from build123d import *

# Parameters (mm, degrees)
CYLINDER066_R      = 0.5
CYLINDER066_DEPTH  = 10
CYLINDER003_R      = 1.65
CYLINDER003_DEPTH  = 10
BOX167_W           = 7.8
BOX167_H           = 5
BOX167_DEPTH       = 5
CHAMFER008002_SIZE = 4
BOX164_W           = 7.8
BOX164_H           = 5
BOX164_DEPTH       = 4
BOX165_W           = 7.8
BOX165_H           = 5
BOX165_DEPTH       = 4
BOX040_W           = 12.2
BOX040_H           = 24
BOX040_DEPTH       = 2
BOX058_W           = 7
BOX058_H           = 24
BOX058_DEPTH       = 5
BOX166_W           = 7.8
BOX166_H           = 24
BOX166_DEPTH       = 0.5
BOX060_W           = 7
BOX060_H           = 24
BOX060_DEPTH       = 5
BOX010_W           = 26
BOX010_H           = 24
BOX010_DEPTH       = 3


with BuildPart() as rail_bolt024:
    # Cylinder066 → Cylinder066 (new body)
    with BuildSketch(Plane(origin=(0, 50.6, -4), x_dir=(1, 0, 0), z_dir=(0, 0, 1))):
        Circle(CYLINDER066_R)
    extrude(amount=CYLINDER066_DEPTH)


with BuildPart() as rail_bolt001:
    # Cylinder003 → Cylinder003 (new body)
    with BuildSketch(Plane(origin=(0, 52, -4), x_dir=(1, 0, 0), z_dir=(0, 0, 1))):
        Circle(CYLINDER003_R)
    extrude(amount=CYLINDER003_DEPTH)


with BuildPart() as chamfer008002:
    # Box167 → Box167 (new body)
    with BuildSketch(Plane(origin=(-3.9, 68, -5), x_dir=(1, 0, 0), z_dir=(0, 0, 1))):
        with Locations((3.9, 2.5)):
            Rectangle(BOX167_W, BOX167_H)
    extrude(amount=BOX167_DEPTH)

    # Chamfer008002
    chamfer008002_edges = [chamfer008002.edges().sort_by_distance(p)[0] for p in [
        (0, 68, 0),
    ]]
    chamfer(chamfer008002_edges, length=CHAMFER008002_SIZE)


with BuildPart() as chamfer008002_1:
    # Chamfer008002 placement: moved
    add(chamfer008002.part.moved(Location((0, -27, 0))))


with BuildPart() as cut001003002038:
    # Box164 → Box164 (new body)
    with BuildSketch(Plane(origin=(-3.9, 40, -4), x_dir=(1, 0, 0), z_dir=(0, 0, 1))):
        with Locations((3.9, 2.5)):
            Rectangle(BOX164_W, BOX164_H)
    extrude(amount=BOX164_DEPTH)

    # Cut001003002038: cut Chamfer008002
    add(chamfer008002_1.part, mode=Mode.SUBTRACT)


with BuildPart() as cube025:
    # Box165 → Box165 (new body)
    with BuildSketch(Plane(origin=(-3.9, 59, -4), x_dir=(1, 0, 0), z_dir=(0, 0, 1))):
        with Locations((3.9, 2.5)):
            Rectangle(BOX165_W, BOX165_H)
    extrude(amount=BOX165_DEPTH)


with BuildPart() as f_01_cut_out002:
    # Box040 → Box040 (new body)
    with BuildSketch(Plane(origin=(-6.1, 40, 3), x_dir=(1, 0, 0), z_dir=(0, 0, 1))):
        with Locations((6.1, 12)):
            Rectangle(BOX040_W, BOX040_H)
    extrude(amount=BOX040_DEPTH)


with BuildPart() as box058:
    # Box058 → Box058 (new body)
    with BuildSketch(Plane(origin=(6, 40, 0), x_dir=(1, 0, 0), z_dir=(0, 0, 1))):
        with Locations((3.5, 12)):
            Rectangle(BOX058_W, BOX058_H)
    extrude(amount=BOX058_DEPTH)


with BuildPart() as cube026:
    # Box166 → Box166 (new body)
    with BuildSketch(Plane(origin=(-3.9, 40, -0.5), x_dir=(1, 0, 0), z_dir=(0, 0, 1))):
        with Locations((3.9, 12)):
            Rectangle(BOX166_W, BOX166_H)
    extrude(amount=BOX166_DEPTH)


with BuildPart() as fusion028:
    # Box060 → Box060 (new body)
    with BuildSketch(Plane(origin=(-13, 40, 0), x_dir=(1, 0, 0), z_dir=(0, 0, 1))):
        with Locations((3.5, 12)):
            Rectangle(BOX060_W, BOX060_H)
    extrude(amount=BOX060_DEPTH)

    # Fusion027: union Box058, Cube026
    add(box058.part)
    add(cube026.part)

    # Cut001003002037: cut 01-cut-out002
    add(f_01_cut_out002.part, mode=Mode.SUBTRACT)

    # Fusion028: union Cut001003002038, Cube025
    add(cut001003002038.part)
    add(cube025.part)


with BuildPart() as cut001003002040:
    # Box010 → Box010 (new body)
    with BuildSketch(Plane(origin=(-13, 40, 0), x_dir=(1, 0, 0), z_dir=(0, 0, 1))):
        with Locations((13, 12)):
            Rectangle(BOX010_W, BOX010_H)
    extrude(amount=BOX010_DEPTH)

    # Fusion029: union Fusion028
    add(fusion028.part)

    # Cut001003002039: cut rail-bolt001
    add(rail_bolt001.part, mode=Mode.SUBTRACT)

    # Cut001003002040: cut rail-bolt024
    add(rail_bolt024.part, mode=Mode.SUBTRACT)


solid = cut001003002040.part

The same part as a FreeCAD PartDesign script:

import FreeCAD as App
import Part
import Sketcher


def edges_at(feature, points):
    """Names of the edges that pass closest to the given points."""
    edges = feature.Shape.Edges
    near = lambda p: min(range(len(edges)), key=lambda i: edges[i].distToShape(Part.Vertex(*p))[0])
    return sorted({f"Edge{near(p) + 1}" for p in points})

doc = App.newDocument("Part")
body = doc.addObject("PartDesign::Body", "Body")

# Sketch on XY plane
sketch1 = doc.addObject("Sketcher::SketchObject", "Sketch")
body.addObject(sketch1)
sketch1.AttachmentSupport = (doc.XY_Plane, [""])
sketch1.MapMode = "FlatFace"
sketch1.AttachmentOffset = App.Placement(App.Vector(0, 0, -4), App.Rotation())
sketch1.addGeometry(Part.Circle(App.Vector(0, 50.6, 0), App.Vector(0, 0, 1), 0.5), False)
sketch1.addConstraint([
    Sketcher.Constraint("PointOnObject", 0, 3, -2),
    Sketcher.Constraint("Diameter", 0, 1.0),
    Sketcher.Constraint("DistanceY", -1, 1, 0, 3, 50.6),
])
pad1 = doc.addObject("PartDesign::Pad", "Pad")
body.addObject(pad1)
pad1.Profile = sketch1
pad1.Length = 10
body2 = doc.addObject("PartDesign::Body", "Body001")

# Sketch on XY plane
sketch2 = doc.addObject("Sketcher::SketchObject", "Sketch001")
body2.addObject(sketch2)
sketch2.AttachmentSupport = (doc.getObject("XY_Plane001"), [""])
sketch2.MapMode = "FlatFace"
sketch2.AttachmentOffset = App.Placement(App.Vector(0, 0, -4), App.Rotation())
sketch2.addGeometry(Part.Circle(App.Vector(0, 52, 0), App.Vector(0, 0, 1), 1.65), False)
sketch2.addConstraint([
    Sketcher.Constraint("PointOnObject", 0, 3, -2),
    Sketcher.Constraint("Diameter", 0, 3.3),
    Sketcher.Constraint("DistanceY", -1, 1, 0, 3, 52.0),
])
pad2 = doc.addObject("PartDesign::Pad", "Pad001")
body2.addObject(pad2)
pad2.Profile = sketch2
pad2.Length = 10
body3 = doc.addObject("PartDesign::Body", "Body002")

# Sketch on XY plane
sketch3 = doc.addObject("Sketcher::SketchObject", "Sketch002")
body3.addObject(sketch3)
sketch3.AttachmentSupport = (doc.getObject("XY_Plane002"), [""])
sketch3.MapMode = "FlatFace"
sketch3.AttachmentOffset = App.Placement(App.Vector(0, 0, -5), App.Rotation())
sketch3.addGeometry([
    Part.LineSegment(App.Vector(-3.9, 73, 0), App.Vector(-3.9, 68, 0)),
    Part.LineSegment(App.Vector(-3.9, 68, 0), App.Vector(3.9, 68, 0)),
    Part.LineSegment(App.Vector(3.9, 68, 0), App.Vector(3.9, 73, 0)),
    Part.LineSegment(App.Vector(3.9, 73, 0), App.Vector(-3.9, 73, 0)),
], False)
sketch3.addConstraint([
    Sketcher.Constraint("Coincident", 0, 2, 1, 1),
    Sketcher.Constraint("Coincident", 1, 2, 2, 1),
    Sketcher.Constraint("Coincident", 2, 2, 3, 1),
    Sketcher.Constraint("Coincident", 3, 2, 0, 1),
    Sketcher.Constraint("Vertical", 0),
    Sketcher.Constraint("Horizontal", 1),
    Sketcher.Constraint("Vertical", 2),
    Sketcher.Constraint("Horizontal", 3),
    Sketcher.Constraint("DistanceY", 0, 2, 0, 1, 5.0),
    Sketcher.Constraint("DistanceX", 1, 1, 1, 2, 7.8),
    Sketcher.Constraint("DistanceY", -1, 1, 0, 2, 68.0),
    Sketcher.Constraint("DistanceX", 0, 2, -1, 1, 3.9),
])
pad3 = doc.addObject("PartDesign::Pad", "Pad002")
body3.addObject(pad3)
pad3.Profile = sketch3
pad3.Length = 5
doc.recompute()

chamfer = doc.addObject("PartDesign::Chamfer", "Chamfer")
body3.addObject(chamfer)
chamfer.Base = (pad3, edges_at(pad3, [(0, 68, 0)]))
chamfer.Size = 4
body4 = doc.addObject("PartDesign::Body", "Body003")
doc.recompute()

body3.Placement = App.Placement(App.Vector(0, -27, 0), App.Rotation(App.Vector(0, 0, 1), 0))
boolean = doc.addObject("PartDesign::Boolean", "Boolean")
body4.addObject(boolean)
boolean.Type = "Fuse"
boolean.addObjects([body3])
body5 = doc.addObject("PartDesign::Body", "Body004")

# Sketch on XY plane
sketch4 = doc.addObject("Sketcher::SketchObject", "Sketch003")
body5.addObject(sketch4)
sketch4.AttachmentSupport = (doc.getObject("XY_Plane004"), [""])
sketch4.MapMode = "FlatFace"
sketch4.AttachmentOffset = App.Placement(App.Vector(0, 0, -4), App.Rotation())
sketch4.addGeometry([
    Part.LineSegment(App.Vector(-3.9, 45, 0), App.Vector(-3.9, 40, 0)),
    Part.LineSegment(App.Vector(-3.9, 40, 0), App.Vector(3.9, 40, 0)),
    Part.LineSegment(App.Vector(3.9, 40, 0), App.Vector(3.9, 45, 0)),
    Part.LineSegment(App.Vector(3.9, 45, 0), App.Vector(-3.9, 45, 0)),
], False)
sketch4.addConstraint([
    Sketcher.Constraint("Coincident", 0, 2, 1, 1),
    Sketcher.Constraint("Coincident", 1, 2, 2, 1),
    Sketcher.Constraint("Coincident", 2, 2, 3, 1),
    Sketcher.Constraint("Coincident", 3, 2, 0, 1),
    Sketcher.Constraint("Vertical", 0),
    Sketcher.Constraint("Horizontal", 1),
    Sketcher.Constraint("Vertical", 2),
    Sketcher.Constraint("Horizontal", 3),
    Sketcher.Constraint("DistanceY", 0, 2, 0, 1, 5.0),
    Sketcher.Constraint("DistanceX", 1, 1, 1, 2, 7.8),
    Sketcher.Constraint("DistanceY", -1, 1, 0, 2, 40.0),
    Sketcher.Constraint("DistanceX", 0, 2, -1, 1, 3.9),
])
pad4 = doc.addObject("PartDesign::Pad", "Pad003")
body5.addObject(pad4)
pad4.Profile = sketch4
pad4.Length = 4
doc.recompute()

boolean2 = doc.addObject("PartDesign::Boolean", "Boolean001")
body5.addObject(boolean2)
boolean2.Type = "Cut"
boolean2.addObjects([body4])
body6 = doc.addObject("PartDesign::Body", "Body005")

# Sketch on XY plane
sketch5 = doc.addObject("Sketcher::SketchObject", "Sketch004")
body6.addObject(sketch5)
sketch5.AttachmentSupport = (doc.getObject("XY_Plane005"), [""])
sketch5.MapMode = "FlatFace"
sketch5.AttachmentOffset = App.Placement(App.Vector(0, 0, -4), App.Rotation())
sketch5.addGeometry([
    Part.LineSegment(App.Vector(-3.9, 64, 0), App.Vector(-3.9, 59, 0)),
    Part.LineSegment(App.Vector(-3.9, 59, 0), App.Vector(3.9, 59, 0)),
    Part.LineSegment(App.Vector(3.9, 59, 0), App.Vector(3.9, 64, 0)),
    Part.LineSegment(App.Vector(3.9, 64, 0), App.Vector(-3.9, 64, 0)),
], False)
sketch5.addConstraint([
    Sketcher.Constraint("Coincident", 0, 2, 1, 1),
    Sketcher.Constraint("Coincident", 1, 2, 2, 1),
    Sketcher.Constraint("Coincident", 2, 2, 3, 1),
    Sketcher.Constraint("Coincident", 3, 2, 0, 1),
    Sketcher.Constraint("Vertical", 0),
    Sketcher.Constraint("Horizontal", 1),
    Sketcher.Constraint("Vertical", 2),
    Sketcher.Constraint("Horizontal", 3),
    Sketcher.Constraint("DistanceY", 0, 2, 0, 1, 5.0),
    Sketcher.Constraint("DistanceX", 1, 1, 1, 2, 7.8),
    Sketcher.Constraint("DistanceY", -1, 1, 0, 2, 59.0),
    Sketcher.Constraint("DistanceX", 0, 2, -1, 1, 3.9),
])
pad5 = doc.addObject("PartDesign::Pad", "Pad004")
body6.addObject(pad5)
pad5.Profile = sketch5
pad5.Length = 4
body7 = doc.addObject("PartDesign::Body", "Body006")

# Sketch on XY plane
sketch6 = doc.addObject("Sketcher::SketchObject", "Sketch005")
body7.addObject(sketch6)
sketch6.AttachmentSupport = (doc.getObject("XY_Plane006"), [""])
sketch6.MapMode = "FlatFace"
sketch6.AttachmentOffset = App.Placement(App.Vector(0, 0, 3), App.Rotation())
sketch6.addGeometry([
    Part.LineSegment(App.Vector(-6.1, 64, 0), App.Vector(-6.1, 40, 0)),
    Part.LineSegment(App.Vector(-6.1, 40, 0), App.Vector(6.1, 40, 0)),
    Part.LineSegment(App.Vector(6.1, 40, 0), App.Vector(6.1, 64, 0)),
    Part.LineSegment(App.Vector(6.1, 64, 0), App.Vector(-6.1, 64, 0)),
], False)
sketch6.addConstraint([
    Sketcher.Constraint("Coincident", 0, 2, 1, 1),
    Sketcher.Constraint("Coincident", 1, 2, 2, 1),
    Sketcher.Constraint("Coincident", 2, 2, 3, 1),
    Sketcher.Constraint("Coincident", 3, 2, 0, 1),
    Sketcher.Constraint("Vertical", 0),
    Sketcher.Constraint("Horizontal", 1),
    Sketcher.Constraint("Vertical", 2),
    Sketcher.Constraint("Horizontal", 3),
    Sketcher.Constraint("DistanceY", 0, 2, 0, 1, 24.0),
    Sketcher.Constraint("DistanceX", 1, 1, 1, 2, 12.2),
    Sketcher.Constraint("DistanceY", -1, 1, 0, 2, 40.0),
    Sketcher.Constraint("DistanceX", 0, 2, -1, 1, 6.1),
])
pad6 = doc.addObject("PartDesign::Pad", "Pad005")
body7.addObject(pad6)
pad6.Profile = sketch6
pad6.Length = 2
body8 = doc.addObject("PartDesign::Body", "Body007")

# Sketch on XY plane
sketch7 = doc.addObject("Sketcher::SketchObject", "Sketch006")
body8.addObject(sketch7)
sketch7.AttachmentSupport = (doc.getObject("XY_Plane007"), [""])
sketch7.MapMode = "FlatFace"
sketch7.addGeometry([
    Part.LineSegment(App.Vector(6, 64, 0), App.Vector(6, 40, 0)),
    Part.LineSegment(App.Vector(6, 40, 0), App.Vector(13, 40, 0)),
    Part.LineSegment(App.Vector(13, 40, 0), App.Vector(13, 64, 0)),
    Part.LineSegment(App.Vector(13, 64, 0), App.Vector(6, 64, 0)),
], False)
sketch7.addConstraint([
    Sketcher.Constraint("Coincident", 0, 2, 1, 1),
    Sketcher.Constraint("Coincident", 1, 2, 2, 1),
    Sketcher.Constraint("Coincident", 2, 2, 3, 1),
    Sketcher.Constraint("Coincident", 3, 2, 0, 1),
    Sketcher.Constraint("Vertical", 0),
    Sketcher.Constraint("Horizontal", 1),
    Sketcher.Constraint("Vertical", 2),
    Sketcher.Constraint("Horizontal", 3),
    Sketcher.Constraint("DistanceX", 1, 1, 1, 2, 7.0),
    Sketcher.Constraint("DistanceY", 0, 2, 0, 1, 24.0),
    Sketcher.Constraint("DistanceX", -1, 1, 0, 2, 6.0),
    Sketcher.Constraint("DistanceY", -1, 1, 0, 2, 40.0),
])
pad7 = doc.addObject("PartDesign::Pad", "Pad006")
body8.addObject(pad7)
pad7.Profile = sketch7
pad7.Length = 5
body9 = doc.addObject("PartDesign::Body", "Body008")

# Sketch on XY plane
sketch8 = doc.addObject("Sketcher::SketchObject", "Sketch007")
body9.addObject(sketch8)
sketch8.AttachmentSupport = (doc.getObject("XY_Plane008"), [""])
sketch8.MapMode = "FlatFace"
sketch8.AttachmentOffset = App.Placement(App.Vector(0, 0, -0.5), App.Rotation())
sketch8.addGeometry([
    Part.LineSegment(App.Vector(-3.9, 64, 0), App.Vector(-3.9, 40, 0)),
    Part.LineSegment(App.Vector(-3.9, 40, 0), App.Vector(3.9, 40, 0)),
    Part.LineSegment(App.Vector(3.9, 40, 0), App.Vector(3.9, 64, 0)),
    Part.LineSegment(App.Vector(3.9, 64, 0), App.Vector(-3.9, 64, 0)),
], False)
sketch8.addConstraint([
    Sketcher.Constraint("Coincident", 0, 2, 1, 1),
    Sketcher.Constraint("Coincident", 1, 2, 2, 1),
    Sketcher.Constraint("Coincident", 2, 2, 3, 1),
    Sketcher.Constraint("Coincident", 3, 2, 0, 1),
    Sketcher.Constraint("Vertical", 0),
    Sketcher.Constraint("Horizontal", 1),
    Sketcher.Constraint("Vertical", 2),
    Sketcher.Constraint("Horizontal", 3),
    Sketcher.Constraint("DistanceY", 0, 2, 0, 1, 24.0),
    Sketcher.Constraint("DistanceX", 1, 1, 1, 2, 7.8),
    Sketcher.Constraint("DistanceY", -1, 1, 0, 2, 40.0),
    Sketcher.Constraint("DistanceX", 0, 2, -1, 1, 3.9),
])
pad8 = doc.addObject("PartDesign::Pad", "Pad007")
body9.addObject(pad8)
pad8.Profile = sketch8
pad8.Length = 0.5
body10 = doc.addObject("PartDesign::Body", "Body009")
body10.AllowCompound = True

# Sketch on XY plane
sketch9 = doc.addObject("Sketcher::SketchObject", "Sketch008")
body10.addObject(sketch9)
sketch9.AttachmentSupport = (doc.getObject("XY_Plane009"), [""])
sketch9.MapMode = "FlatFace"
sketch9.addGeometry([
    Part.LineSegment(App.Vector(-13, 64, 0), App.Vector(-13, 40, 0)),
    Part.LineSegment(App.Vector(-13, 40, 0), App.Vector(-6, 40, 0)),
    Part.LineSegment(App.Vector(-6, 40, 0), App.Vector(-6, 64, 0)),
    Part.LineSegment(App.Vector(-6, 64, 0), App.Vector(-13, 64, 0)),
], False)
sketch9.addConstraint([
    Sketcher.Constraint("Coincident", 0, 2, 1, 1),
    Sketcher.Constraint("Coincident", 1, 2, 2, 1),
    Sketcher.Constraint("Coincident", 2, 2, 3, 1),
    Sketcher.Constraint("Coincident", 3, 2, 0, 1),
    Sketcher.Constraint("Vertical", 0),
    Sketcher.Constraint("Horizontal", 1),
    Sketcher.Constraint("Vertical", 2),
    Sketcher.Constraint("Horizontal", 3),
    Sketcher.Constraint("DistanceX", 1, 1, 1, 2, 7.0),
    Sketcher.Constraint("DistanceY", 0, 2, 0, 1, 24.0),
    Sketcher.Constraint("DistanceX", 0, 2, -1, 1, 13.0),
    Sketcher.Constraint("DistanceY", -1, 1, 0, 2, 40.0),
])
pad9 = doc.addObject("PartDesign::Pad", "Pad008")
body10.addObject(pad9)
pad9.Profile = sketch9
pad9.Length = 5
doc.recompute()

boolean3 = doc.addObject("PartDesign::Boolean", "Boolean002")
body10.addObject(boolean3)
boolean3.Type = "Fuse"
boolean3.addObjects([body8])
doc.recompute()

boolean4 = doc.addObject("PartDesign::Boolean", "Boolean003")
body10.addObject(boolean4)
boolean4.Type = "Fuse"
boolean4.addObjects([body9])
doc.recompute()

boolean5 = doc.addObject("PartDesign::Boolean", "Boolean004")
body10.addObject(boolean5)
boolean5.Type = "Cut"
boolean5.addObjects([body7])
doc.recompute()

boolean6 = doc.addObject("PartDesign::Boolean", "Boolean005")
body10.addObject(boolean6)
boolean6.Type = "Fuse"
boolean6.addObjects([body5])
doc.recompute()

boolean7 = doc.addObject("PartDesign::Boolean", "Boolean006")
body10.addObject(boolean7)
boolean7.Type = "Fuse"
boolean7.addObjects([body6])
body11 = doc.addObject("PartDesign::Body", "Body010")

# Sketch on XY plane
sketch10 = doc.addObject("Sketcher::SketchObject", "Sketch009")
body11.addObject(sketch10)
sketch10.AttachmentSupport = (doc.getObject("XY_Plane010"), [""])
sketch10.MapMode = "FlatFace"
sketch10.addGeometry([
    Part.LineSegment(App.Vector(-13, 64, 0), App.Vector(-13, 40, 0)),
    Part.LineSegment(App.Vector(-13, 40, 0), App.Vector(13, 40, 0)),
    Part.LineSegment(App.Vector(13, 40, 0), App.Vector(13, 64, 0)),
    Part.LineSegment(App.Vector(13, 64, 0), App.Vector(-13, 64, 0)),
], False)
sketch10.addConstraint([
    Sketcher.Constraint("Coincident", 0, 2, 1, 1),
    Sketcher.Constraint("Coincident", 1, 2, 2, 1),
    Sketcher.Constraint("Coincident", 2, 2, 3, 1),
    Sketcher.Constraint("Coincident", 3, 2, 0, 1),
    Sketcher.Constraint("Vertical", 0),
    Sketcher.Constraint("Horizontal", 1),
    Sketcher.Constraint("Vertical", 2),
    Sketcher.Constraint("Horizontal", 3),
    Sketcher.Constraint("DistanceX", 1, 1, 1, 2, 26.0),
    Sketcher.Constraint("DistanceY", 0, 2, 0, 1, 24.0),
    Sketcher.Constraint("DistanceX", 0, 2, -1, 1, 13.0),
    Sketcher.Constraint("DistanceY", -1, 1, 0, 2, 40.0),
])
pad10 = doc.addObject("PartDesign::Pad", "Pad009")
body11.addObject(pad10)
pad10.Profile = sketch10
pad10.Length = 3
doc.recompute()

boolean8 = doc.addObject("PartDesign::Boolean", "Boolean007")
body11.addObject(boolean8)
boolean8.Type = "Fuse"
boolean8.addObjects([body10])
doc.recompute()

boolean9 = doc.addObject("PartDesign::Boolean", "Boolean008")
body11.addObject(boolean9)
boolean9.Type = "Cut"
boolean9.addObjects([body2])
doc.recompute()

boolean10 = doc.addObject("PartDesign::Boolean", "Boolean009")
body11.addObject(boolean10)
boolean10.Type = "Cut"
boolean10.addObjects([body])

doc.recompute()
